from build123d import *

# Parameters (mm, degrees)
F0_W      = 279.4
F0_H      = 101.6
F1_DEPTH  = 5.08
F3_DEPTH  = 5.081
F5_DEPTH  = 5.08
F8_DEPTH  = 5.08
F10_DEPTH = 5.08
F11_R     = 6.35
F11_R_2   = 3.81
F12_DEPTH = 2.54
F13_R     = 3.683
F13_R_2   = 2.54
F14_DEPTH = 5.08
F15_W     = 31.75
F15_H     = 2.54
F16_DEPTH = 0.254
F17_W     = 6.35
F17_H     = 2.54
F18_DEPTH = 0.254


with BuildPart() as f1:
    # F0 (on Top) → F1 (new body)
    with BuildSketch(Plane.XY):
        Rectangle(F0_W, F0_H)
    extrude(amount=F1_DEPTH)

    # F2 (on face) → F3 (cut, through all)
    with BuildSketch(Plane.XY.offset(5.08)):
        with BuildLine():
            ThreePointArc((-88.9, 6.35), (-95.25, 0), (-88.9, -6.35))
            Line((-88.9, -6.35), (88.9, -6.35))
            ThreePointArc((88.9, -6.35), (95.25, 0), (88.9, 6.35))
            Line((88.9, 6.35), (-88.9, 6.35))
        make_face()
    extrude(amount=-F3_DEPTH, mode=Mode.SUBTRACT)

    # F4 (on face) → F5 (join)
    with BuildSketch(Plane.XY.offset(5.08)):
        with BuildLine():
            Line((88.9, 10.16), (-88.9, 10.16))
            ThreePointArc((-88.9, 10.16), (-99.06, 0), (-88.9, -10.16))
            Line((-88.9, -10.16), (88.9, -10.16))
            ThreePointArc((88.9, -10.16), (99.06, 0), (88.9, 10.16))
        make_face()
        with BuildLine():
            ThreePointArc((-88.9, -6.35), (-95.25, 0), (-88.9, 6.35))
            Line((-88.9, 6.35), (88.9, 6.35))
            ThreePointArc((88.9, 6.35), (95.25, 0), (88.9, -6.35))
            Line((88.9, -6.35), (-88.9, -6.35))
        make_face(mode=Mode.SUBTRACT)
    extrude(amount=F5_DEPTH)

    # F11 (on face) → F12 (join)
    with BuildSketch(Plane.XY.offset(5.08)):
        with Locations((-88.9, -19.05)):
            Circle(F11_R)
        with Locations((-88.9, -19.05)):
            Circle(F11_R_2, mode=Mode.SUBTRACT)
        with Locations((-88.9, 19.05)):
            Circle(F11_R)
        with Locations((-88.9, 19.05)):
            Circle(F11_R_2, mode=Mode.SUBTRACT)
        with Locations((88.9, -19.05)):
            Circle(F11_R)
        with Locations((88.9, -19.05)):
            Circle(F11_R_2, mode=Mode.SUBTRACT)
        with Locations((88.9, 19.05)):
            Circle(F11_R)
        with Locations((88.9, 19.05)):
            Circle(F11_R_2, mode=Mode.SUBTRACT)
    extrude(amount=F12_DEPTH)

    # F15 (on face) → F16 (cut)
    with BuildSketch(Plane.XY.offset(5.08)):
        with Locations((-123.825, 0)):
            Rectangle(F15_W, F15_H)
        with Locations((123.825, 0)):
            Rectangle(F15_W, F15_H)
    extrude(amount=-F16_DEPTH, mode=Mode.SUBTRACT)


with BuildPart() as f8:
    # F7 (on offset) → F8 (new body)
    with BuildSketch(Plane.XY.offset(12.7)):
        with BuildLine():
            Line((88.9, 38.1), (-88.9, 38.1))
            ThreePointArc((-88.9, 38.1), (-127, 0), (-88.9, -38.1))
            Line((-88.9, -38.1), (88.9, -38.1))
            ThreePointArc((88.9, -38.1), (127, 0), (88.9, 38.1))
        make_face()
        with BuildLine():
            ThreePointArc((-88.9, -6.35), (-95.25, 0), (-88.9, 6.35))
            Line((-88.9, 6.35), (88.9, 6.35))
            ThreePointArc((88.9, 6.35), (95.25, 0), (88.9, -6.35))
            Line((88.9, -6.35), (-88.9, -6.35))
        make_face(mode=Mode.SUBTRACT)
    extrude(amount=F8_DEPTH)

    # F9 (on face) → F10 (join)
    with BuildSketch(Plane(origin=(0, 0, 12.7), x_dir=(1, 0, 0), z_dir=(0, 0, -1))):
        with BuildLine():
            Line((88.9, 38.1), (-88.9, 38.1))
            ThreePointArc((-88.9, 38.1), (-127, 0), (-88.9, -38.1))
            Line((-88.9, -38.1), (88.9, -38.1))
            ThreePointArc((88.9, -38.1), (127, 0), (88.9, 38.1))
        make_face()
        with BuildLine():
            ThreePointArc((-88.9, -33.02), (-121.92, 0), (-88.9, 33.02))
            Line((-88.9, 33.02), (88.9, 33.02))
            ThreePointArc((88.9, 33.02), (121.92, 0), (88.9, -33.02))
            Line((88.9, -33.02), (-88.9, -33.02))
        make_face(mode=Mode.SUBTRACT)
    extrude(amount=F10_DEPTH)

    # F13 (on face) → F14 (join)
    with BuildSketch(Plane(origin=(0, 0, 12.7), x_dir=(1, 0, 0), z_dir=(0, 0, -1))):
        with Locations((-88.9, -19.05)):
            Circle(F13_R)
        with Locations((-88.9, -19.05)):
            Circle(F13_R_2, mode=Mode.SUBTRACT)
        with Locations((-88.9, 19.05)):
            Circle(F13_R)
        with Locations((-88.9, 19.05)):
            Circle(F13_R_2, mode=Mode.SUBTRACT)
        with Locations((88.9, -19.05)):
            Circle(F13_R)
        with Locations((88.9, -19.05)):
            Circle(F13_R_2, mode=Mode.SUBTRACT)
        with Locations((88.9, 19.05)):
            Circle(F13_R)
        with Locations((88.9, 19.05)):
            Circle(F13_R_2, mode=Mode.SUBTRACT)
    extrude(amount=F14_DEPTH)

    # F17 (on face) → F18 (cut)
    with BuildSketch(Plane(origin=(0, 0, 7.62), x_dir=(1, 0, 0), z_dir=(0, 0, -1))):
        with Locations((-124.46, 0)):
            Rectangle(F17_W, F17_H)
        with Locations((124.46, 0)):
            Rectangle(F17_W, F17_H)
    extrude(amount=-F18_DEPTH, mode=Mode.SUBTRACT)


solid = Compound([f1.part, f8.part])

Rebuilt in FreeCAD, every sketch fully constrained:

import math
import FreeCAD as App
import Part
import Sketcher

V = App.Vector
Q = App.Units.Quantity


def add_polygon(sketch, points):
    """Adds a closed chain of lines whose ends are joined by coincident constraints."""
    first, n = sketch.GeometryCount, len(points)
    for a, b in zip(points, points[1:] + points[:1]):
        sketch.addGeometry(Part.LineSegment(App.Vector(*a, 0), App.Vector(*b, 0)), False)
    for i in range(n):
        sketch.addConstraint(Sketcher.Constraint("Coincident", first + i, 2, first + (i + 1) % n, 1))

doc = App.newDocument("Part")
body = doc.addObject("PartDesign::Body", "Body")

# Sketch on XY plane
sketch1 = body.newObject("Sketcher::SketchObject", "Sketch")
sketch1.AttachmentSupport = (doc.getObject("XY_Plane"), [""])
sketch1.MapMode = "FlatFace"
add_polygon(sketch1, [(-140, 51), (-140, -51), (140, -51), (140, 51)])  # lines 0-3
sketch1.addConstraint([
    Sketcher.Constraint("Vertical", 0),
    Sketcher.Constraint("Horizontal", 1),
    Sketcher.Constraint("Vertical", 2),
    Sketcher.Constraint("Horizontal", 3),
    Sketcher.Constraint("Symmetric", 0, 2, 2, 2, -1, 1),
    Sketcher.Constraint("DistanceX", 1, 1, 1, 2, Q("11 in")),
    Sketcher.Constraint("DistanceY", 0, 2, 0, 1, Q("4 in")),
])
pad1 = body.newObject("PartDesign::Pad", "Pad")
pad1.Profile = sketch1
pad1.Length = Q("0.2 in")

# Sketch on XY plane
sketch2 = body.newObject("Sketcher::SketchObject", "Sketch001")
sketch2.AttachmentSupport = (doc.getObject("XY_Plane"), [""])
sketch2.MapMode = "FlatFace"
sketch2.AttachmentOffset = App.Placement(V(0, 0, 0.2 * 25.4), App.Rotation())
sketch2.addGeometry([
    Part.ArcOfCircle(Part.Circle(V(-89, 0, 0), V(0, 0, 1), 6), math.radians(90), math.radians(270)),
    Part.LineSegment(V(-89, -6, 0), V(89, -6, 0)),
    Part.ArcOfCircle(Part.Circle(V(89, 0, 0), V(0, 0, 1), 6), math.radians(-90), math.radians(90)),
    Part.LineSegment(V(89, 6, 0), V(-89, 6, 0)),
], False)
sketch2.addConstraint([
    Sketcher.Constraint("Tangent", 0, 2, 1, 1),
    Sketcher.Constraint("Tangent", 1, 2, 2, 1),
    Sketcher.Constraint("Tangent", 2, 2, 3, 1),
    Sketcher.Constraint("Tangent", 3, 2, 0, 1),
    Sketcher.Constraint("Horizontal", 1),
    Sketcher.Constraint("Horizontal", 3),
    Sketcher.Constraint("Symmetric", 0, 3, 2, 3, -1, 1),
    Sketcher.Constraint("DistanceX", 1, 1, 1, 2, Q("7 in")),
    Sketcher.Constraint("Radius", 0, Q("0.25 in")),
])
pocket1 = body.newObject("PartDesign::Pocket", "Pocket")
pocket1.Profile = sketch2
pocket1.Type = "ThroughAll"

# Sketch on XY plane
sketch3 = body.newObject("Sketcher::SketchObject", "Sketch002")
sketch3.AttachmentSupport = (doc.getObject("XY_Plane"), [""])
sketch3.MapMode = "FlatFace"
sketch3.AttachmentOffset = App.Placement(V(0, 0, 0.2 * 25.4), App.Rotation())
sketch3.addGeometry([
    Part.LineSegment(V(89, 10, 0), V(-89, 10, 0)),  # 0
    Part.ArcOfCircle(Part.Circle(V(-89, 0, 0), V(0, 0, 1), 10), math.radians(90), math.radians(270)),  # 1
    Part.LineSegment(V(-89, -10, 0), V(89, -10, 0)),  # 2
    Part.ArcOfCircle(Part.Circle(V(89, 0, 0), V(0, 0, 1), 10), math.radians(-90), math.radians(90)),  # 3
    Part.LineSegment(V(89, -6, 0), V(-89, -6, 0)),  # 4
    Part.ArcOfCircle(Part.Circle(V(-89, 0, 0), V(0, 0, 1), 6), math.radians(90), math.radians(270)),  # 5
    Part.LineSegment(V(-89, 6, 0), V(89, 6, 0)),  # 6
    Part.ArcOfCircle(Part.Circle(V(89, 0, 0), V(0, 0, 1), 6), math.radians(-90), math.radians(90)),  # 7
], False)
sketch3.addConstraint([
    Sketcher.Constraint("Tangent", 0, 2, 1, 1),
    Sketcher.Constraint("Tangent", 1, 2, 2, 1),
    Sketcher.Constraint("Tangent", 2, 2, 3, 1),
    Sketcher.Constraint("Tangent", 3, 2, 0, 1),
    Sketcher.Constraint("Tangent", 4, 2, 5, 2),
    Sketcher.Constraint("Tangent", 5, 1, 6, 1),
    Sketcher.Constraint("Tangent", 6, 2, 7, 2),
    Sketcher.Constraint("Tangent", 7, 1, 4, 1),
    Sketcher.Constraint("Horizontal", 0),
    Sketcher.Constraint("Horizontal", 2),
    Sketcher.Constraint("Horizontal", 4),
    Sketcher.Constraint("Horizontal", 6),
    Sketcher.Constraint("Coincident", 5, 3, 1, 3),
    Sketcher.Constraint("Symmetric", 1, 3, 3, 3, -1, 1),
    Sketcher.Constraint("Vertical", 7, 3, 2, 2),
    Sketcher.Constraint("Radius", 1, Q("0.4 in")),
    Sketcher.Constraint("DistanceX", 0, 2, 0, 1, Q("7 in")),
    Sketcher.Constraint("Radius", 5, Q("0.25 in")),
])
pad2 = body.newObject("PartDesign::Pad", "Pad001")
pad2.Profile = sketch3
pad2.Length = Q("0.2 in")

# Sketch on XY plane
sketch4 = body.newObject("Sketcher::SketchObject", "Sketch003")
sketch4.AttachmentSupport = (doc.getObject("XY_Plane"), [""])
sketch4.MapMode = "FlatFace"
sketch4.AttachmentOffset = App.Placement(V(0, 0, 0.2 * 25.4), App.Rotation())
sketch4.addGeometry([
    Part.Circle(V(-88.9, -19.1, 0), V(0, 0, 1), 6.3),  # 0
    Part.Circle(V(-88.9, -19.1, 0), V(0, 0, 1), 3.8),  # 1
    Part.Circle(V(-88.9, 19.1, 0), V(0, 0, 1), 6.3),  # 2
    Part.Circle(V(-88.9, 19.1, 0), V(0, 0, 1), 3.8),  # 3
    Part.Circle(V(88.9, -19.1, 0), V(0, 0, 1), 6.3),  # 4
    Part.Circle(V(88.9, -19.1, 0), V(0, 0, 1), 3.8),  # 5
    Part.Circle(V(88.9, 19.1, 0), V(0, 0, 1), 6.3),  # 6
    Part.Circle(V(88.9, 19.1, 0), V(0, 0, 1), 3.8),  # 7
], False)
sketch4.addConstraint([
    Sketcher.Constraint("Coincident", 1, 3, 0, 3),
    Sketcher.Constraint("Coincident", 3, 3, 2, 3),
    Sketcher.Constraint("Coincident", 5, 3, 4, 3),
    Sketcher.Constraint("Coincident", 7, 3, 6, 3),
    Sketcher.Constraint("Equal", 0, 2),
    Sketcher.Constraint("Equal", 1, 3),
    Sketcher.Constraint("Equal", 2, 4),
    Sketcher.Constraint("Equal", 3, 5),
    Sketcher.Constraint("Equal", 4, 6),
    Sketcher.Constraint("Equal", 5, 7),
    Sketcher.Constraint("Symmetric", 2, 3, 4, 3, -1, 1),
    Sketcher.Constraint("Symmetric", 0, 3, 6, 3, -1, 1),
    Sketcher.Constraint("Symmetric", 0, 3, 4, 3, -2),
    Sketcher.Constraint("Diameter", 0, Q("0.5 in")),
    Sketcher.Constraint("Diameter", 1, Q("0.3 in")),
    Sketcher.Constraint("DistanceX", 0, 3, 4, 3, Q("7 in")),
    Sketcher.Constraint("DistanceY", 0, 3, 2, 3, Q("1.5 in")),
])
pad3 = body.newObject("PartDesign::Pad", "Pad002")
pad3.Profile = sketch4
pad3.Length = Q("0.1 in")

# Sketch on XY plane
sketch5 = body.newObject("Sketcher::SketchObject", "Sketch004")
sketch5.AttachmentSupport = (doc.getObject("XY_Plane"), [""])
sketch5.MapMode = "FlatFace"
sketch5.AttachmentOffset = App.Placement(V(0, 0, 0.2 * 25.4), App.Rotation())
add_polygon(sketch5, [(-139.7, 1.3), (-139.7, -1.3), (-108, -1.3), (-108, 1.3)])  # lines 0-3
add_polygon(sketch5, [(108, 1.3), (108, -1.3), (139.7, -1.3), (139.7, 1.3)])  # lines 4-7
sketch5.addConstraint([
    Sketcher.Constraint("Vertical", 0),
    Sketcher.Constraint("Horizontal", 1),
    Sketcher.Constraint("Vertical", 2),
    Sketcher.Constraint("Horizontal", 3),
    Sketcher.Constraint("Vertical", 4),
    Sketcher.Constraint("Horizontal", 5),
    Sketcher.Constraint("Vertical", 6),
    Sketcher.Constraint("Horizontal", 7),
    Sketcher.Constraint("Symmetric", 2, 2, 4, 2, -1, 1),
    Sketcher.Constraint("Symmetric", 0, 2, 6, 2, -1, 1),
    Sketcher.Constraint("Horizontal", 1, 2, 4, 2),
    Sketcher.Constraint("DistanceY", 0, 2, 0, 1, Q("0.1 in")),
    Sketcher.Constraint("DistanceX", 0, 2, 5, 2, Q("11 in")),
    Sketcher.Constraint("DistanceX", 1, 1, 1, 2, Q("1.25 in")),
])
pocket2 = body.newObject("PartDesign::Pocket", "Pocket001")
pocket2.Profile = sketch5
pocket2.Length = Q("0.01 in")
body2 = doc.addObject("PartDesign::Body", "Body001")

# Sketch on XY plane
sketch6 = body2.newObject("Sketcher::SketchObject", "Sketch005")
sketch6.AttachmentSupport = (doc.getObject("XY_Plane001"), [""])
sketch6.MapMode = "FlatFace"
sketch6.AttachmentOffset = App.Placement(V(0, 0, 0.5 * 25.4), App.Rotation())
sketch6.addGeometry([
    Part.LineSegment(V(89, 38, 0), V(-89, 38, 0)),  # 0
    Part.ArcOfCircle(Part.Circle(V(-89, 0, 0), V(0, 0, 1), 38), math.radians(90), math.radians(270)),  # 1
    Part.LineSegment(V(-89, -38, 0), V(89, -38, 0)),  # 2
    Part.ArcOfCircle(Part.Circle(V(89, 0, 0), V(0, 0, 1), 38), math.radians(-90), math.radians(90)),  # 3
    Part.LineSegment(V(89, -6, 0), V(-89, -6, 0)),  # 4
    Part.ArcOfCircle(Part.Circle(V(-89, 0, 0), V(0, 0, 1), 6), math.radians(90), math.radians(270)),  # 5
    Part.LineSegment(V(-89, 6, 0), V(89, 6, 0)),  # 6
    Part.ArcOfCircle(Part.Circle(V(89, 0, 0), V(0, 0, 1), 6), math.radians(-90), math.radians(90)),  # 7
], False)
sketch6.addConstraint([
    Sketcher.Constraint("Tangent", 0, 2, 1, 1),
    Sketcher.Constraint("Tangent", 1, 2, 2, 1),
    Sketcher.Constraint("Tangent", 2, 2, 3, 1),
    Sketcher.Constraint("Tangent", 3, 2, 0, 1),
    Sketcher.Constraint("Tangent", 4, 2, 5, 2),
    Sketcher.Constraint("Tangent", 5, 1, 6, 1),
    Sketcher.Constraint("Tangent", 6, 2, 7, 2),
    Sketcher.Constraint("Tangent", 7, 1, 4, 1),
    Sketcher.Constraint("Horizontal", 0),
    Sketcher.Constraint("Horizontal", 2),
    Sketcher.Constraint("Horizontal", 4),
    Sketcher.Constraint("Horizontal", 6),
    Sketcher.Constraint("Coincident", 5, 3, 1, 3),
    Sketcher.Constraint("Symmetric", 1, 3, 3, 3, -1, 1),
    Sketcher.Constraint("Vertical", 7, 3, 2, 2),
    Sketcher.Constraint("Radius", 1, Q("1.5 in")),
    Sketcher.Constraint("DistanceX", 0, 2, 0, 1, Q("7 in")),
    Sketcher.Constraint("Radius", 5, Q("0.25 in")),
])
pad4 = body2.newObject("PartDesign::Pad", "Pad003")
pad4.Profile = sketch6
pad4.Length = Q("0.2 in")

# Sketch on XY plane
sketch7 = body2.newObject("Sketcher::SketchObject", "Sketch006")
sketch7.AttachmentSupport = (doc.getObject("XY_Plane001"), [""])
sketch7.MapMode = "FlatFace"
sketch7.AttachmentOffset = App.Placement(V(0, 0, 0.5 * 25.4), App.Rotation())
sketch7.addGeometry([
    Part.LineSegment(V(89, -38, 0), V(-89, -38, 0)),  # 0
    Part.ArcOfCircle(Part.Circle(V(-89, 0, 0), V(0, 0, 1), 38), math.radians(90), math.radians(270)),  # 1
    Part.LineSegment(V(-89, 38, 0), V(89, 38, 0)),  # 2
    Part.ArcOfCircle(Part.Circle(V(89, 0, 0), V(0, 0, 1), 38), math.radians(-90), math.radians(90)),  # 3
    Part.LineSegment(V(89, 33, 0), V(-89, 33, 0)),  # 4
    Part.ArcOfCircle(Part.Circle(V(-89, 0, 0), V(0, 0, 1), 33), math.radians(90), math.radians(270)),  # 5
    Part.LineSegment(V(-89, -33, 0), V(89, -33, 0)),  # 6
    Part.ArcOfCircle(Part.Circle(V(89, 0, 0), V(0, 0, 1), 33), math.radians(-90), math.radians(90)),  # 7
], False)
sketch7.addConstraint([
    Sketcher.Constraint("Tangent", 0, 2, 1, 2),
    Sketcher.Constraint("Tangent", 1, 1, 2, 1),
    Sketcher.Constraint("Tangent", 2, 2, 3, 2),
    Sketcher.Constraint("Tangent", 3, 1, 0, 1),
    Sketcher.Constraint("Tangent", 4, 2, 5, 1),
    Sketcher.Constraint("Tangent", 5, 2, 6, 1),
    Sketcher.Constraint("Tangent", 6, 2, 7, 1),
    Sketcher.Constraint("Tangent", 7, 2, 4, 1),
    Sketcher.Constraint("Horizontal", 0),
    Sketcher.Constraint("Horizontal", 2),
    Sketcher.Constraint("Horizontal", 4),
    Sketcher.Constraint("Horizontal", 6),
    Sketcher.Constraint("Coincident", 5, 3, 1, 3),
    Sketcher.Constraint("Symmetric", 1, 3, 3, 3, -1, 1),
    Sketcher.Constraint("Vertical", 7, 3, 2, 2),
    Sketcher.Constraint("Radius", 1, Q("1.5 in")),
    Sketcher.Constraint("Radius", 5, Q("1.3 in")),
    Sketcher.Constraint("DistanceX", 0, 2, 0, 1, Q("7 in")),
])
pad5 = body2.newObject("PartDesign::Pad", "Pad004")
pad5.Profile = sketch7
pad5.Length = Q("0.2 in")
pad5.Reversed = True

# Sketch on XY plane
sketch8 = body2.newObject("Sketcher::SketchObject", "Sketch007")
sketch8.AttachmentSupport = (doc.getObject("XY_Plane001"), [""])
sketch8.MapMode = "FlatFace"
sketch8.AttachmentOffset = App.Placement(V(0, 0, 0.5 * 25.4), App.Rotation())
sketch8.addGeometry([
    Part.Circle(V(-88.9, 19.1, 0), V(0, 0, 1), 3.7),  # 0
    Part.Circle(V(-88.9, 19.1, 0), V(0, 0, 1), 2.5),  # 1
    Part.Circle(V(-88.9, -19.1, 0), V(0, 0, 1), 3.7),  # 2
    Part.Circle(V(-88.9, -19.1, 0), V(0, 0, 1), 2.5),  # 3
    Part.Circle(V(88.9, 19.1, 0), V(0, 0, 1), 3.7),  # 4
    Part.Circle(V(88.9, 19.1, 0), V(0, 0, 1), 2.5),  # 5
    Part.Circle(V(88.9, -19.1, 0), V(0, 0, 1), 3.7),  # 6
    Part.Circle(V(88.9, -19.1, 0), V(0, 0, 1), 2.5),  # 7
], False)
sketch8.addConstraint([
    Sketcher.Constraint("Coincident", 1, 3, 0, 3),
    Sketcher.Constraint("Coincident", 3, 3, 2, 3),
    Sketcher.Constraint("Coincident", 5, 3, 4, 3),
    Sketcher.Constraint("Coincident", 7, 3, 6, 3),
    Sketcher.Constraint("Equal", 0, 2),
    Sketcher.Constraint("Equal", 1, 3),
    Sketcher.Constraint("Equal", 2, 4),
    Sketcher.Constraint("Equal", 3, 5),
    Sketcher.Constraint("Equal", 4, 6),
    Sketcher.Constraint("Equal", 5, 7),
    Sketcher.Constraint("Symmetric", 2, 3, 4, 3, -1, 1),
    Sketcher.Constraint("Symmetric", 0, 3, 6, 3, -1, 1),
    Sketcher.Constraint("Symmetric", 0, 3, 4, 3, -2),
    Sketcher.Constraint("Diameter", 1, Q("0.2 in")),
    Sketcher.Constraint("Diameter", 0, Q("0.29 in")),
    Sketcher.Constraint("DistanceX", 0, 3, 4, 3, Q("7 in")),
    Sketcher.Constraint("DistanceY", 2, 3, 0, 3, Q("1.5 in")),
])
pad6 = body2.newObject("PartDesign::Pad", "Pad005")
pad6.Profile = sketch8
pad6.Length = Q("0.2 in")
pad6.Reversed = True

# Sketch on XY plane
sketch9 = body2.newObject("Sketcher::SketchObject", "Sketch008")
sketch9.AttachmentSupport = (doc.getObject("XY_Plane001"), [""])
sketch9.MapMode = "FlatFace"
sketch9.AttachmentOffset = App.Placement(V(0, 0, 0.3 * 25.4), App.Rotation())
add_polygon(sketch9, [(-127.6, -1.3), (-127.6, 1.3), (-121.3, 1.3), (-121.3, -1.3)])  # lines 0-3
add_polygon(sketch9, [(121.3, -1.3), (121.3, 1.3), (127.6, 1.3), (127.6, -1.3)])  # lines 4-7
sketch9.addConstraint([
    Sketcher.Constraint("Vertical", 0),
    Sketcher.Constraint("Horizontal", 1),
    Sketcher.Constraint("Vertical", 2),
    Sketcher.Constraint("Horizontal", 3),
    Sketcher.Constraint("Vertical", 4),
    Sketcher.Constraint("Horizontal", 5),
    Sketcher.Constraint("Vertical", 6),
    Sketcher.Constraint("Horizontal", 7),
    Sketcher.Constraint("Symmetric", 2, 2, 4, 2, -1, 1),
    Sketcher.Constraint("Symmetric", 0, 2, 6, 2, -1, 1),
    Sketcher.Constraint("Horizontal", 1, 2, 4, 2),
    Sketcher.Constraint("DistanceY", 0, 1, 0, 2, Q("0.1 in")),
    Sketcher.Constraint("DistanceX", 1, 1, 1, 2, Q("0.25 in")),
    Sketcher.Constraint("DistanceX", 0, 2, 4, 2, Q("9.8 in")),
])
pocket3 = body2.newObject("PartDesign::Pocket", "Pocket002")
pocket3.Profile = sketch9
pocket3.Length = Q("0.01 in")
pocket3.Reversed = True

doc.recompute()
